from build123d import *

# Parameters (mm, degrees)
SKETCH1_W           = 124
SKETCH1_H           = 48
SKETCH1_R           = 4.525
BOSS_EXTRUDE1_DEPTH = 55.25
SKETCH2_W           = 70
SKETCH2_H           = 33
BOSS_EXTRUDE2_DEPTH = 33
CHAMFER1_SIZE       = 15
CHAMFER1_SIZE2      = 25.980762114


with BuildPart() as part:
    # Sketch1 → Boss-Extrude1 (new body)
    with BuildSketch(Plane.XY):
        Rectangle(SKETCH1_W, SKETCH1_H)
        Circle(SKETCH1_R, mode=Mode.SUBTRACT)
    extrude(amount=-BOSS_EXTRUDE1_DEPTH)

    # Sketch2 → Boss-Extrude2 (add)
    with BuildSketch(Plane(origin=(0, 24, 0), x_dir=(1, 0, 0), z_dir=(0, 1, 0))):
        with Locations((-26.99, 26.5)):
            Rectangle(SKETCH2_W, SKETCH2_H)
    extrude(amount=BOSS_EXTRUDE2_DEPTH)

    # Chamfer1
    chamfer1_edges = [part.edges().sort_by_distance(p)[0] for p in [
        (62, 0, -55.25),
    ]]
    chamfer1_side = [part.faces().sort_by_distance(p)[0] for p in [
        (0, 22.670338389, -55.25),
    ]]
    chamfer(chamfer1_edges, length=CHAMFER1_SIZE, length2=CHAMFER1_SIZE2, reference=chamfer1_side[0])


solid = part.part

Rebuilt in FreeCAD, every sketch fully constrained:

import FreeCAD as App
import Part
import Sketcher


def edges_at(feature, points):
    """Names of the edges that pass closest to the given points."""
    edges = feature.Shape.Edges
    near = lambda p: min(range(len(edges)), key=lambda i: edges[i].distToShape(Part.Vertex(*p))[0])
    return sorted({f"Edge{near(p) + 1}" for p in points})

doc = App.newDocument("Part")
params = doc.addObject("Spreadsheet::Sheet", "Params")
for row, (alias, value) in enumerate([
    ("sketch1_diameter", "9.05 mm"),
    ("sketch1_width", "124 mm"),
    ("sketch1_height", "48 mm"),
    ("pad1_length", "55.25 mm"),
    ("sketch2_width", "70 mm"),
    ("sketch2_height", "33 mm"),
    ("pad2_length", "33 mm"),
    ("chamfer_size", "15 mm"),
    ("chamfer_size2", "25.980762 mm"),
], start=1):
    params.set(f"A{row}", alias)
    params.set(f"B{row}", "=" + value)
    params.setAlias(f"B{row}", alias)

body = doc.addObject("PartDesign::Body", "Body")

sketch1 = body.newObject("Sketcher::SketchObject", "Sketch")
sketch1.AttachmentSupport = (doc.getObject("XY_Plane"), [""])
sketch1.MapMode = "FlatFace"
sketch1.addGeometry([
    Part.LineSegment(App.Vector(-62, 24, 0), App.Vector(-62, -24, 0)),
    Part.LineSegment(App.Vector(-62, -24, 0), App.Vector(62, -24, 0)),
    Part.LineSegment(App.Vector(62, -24, 0), App.Vector(62, 24, 0)),
    Part.LineSegment(App.Vector(62, 24, 0), App.Vector(-62, 24, 0)),
    Part.Circle(App.Vector(0, 0, 0), App.Vector(0, 0, 1), 4.5),
], False)
sketch1.addConstraint([
    Sketcher.Constraint("Coincident", 0, 2, 1, 1),
    Sketcher.Constraint("Coincident", 1, 2, 2, 1),
    Sketcher.Constraint("Coincident", 2, 2, 3, 1),
    Sketcher.Constraint("Coincident", 3, 2, 0, 1),
    Sketcher.Constraint("Vertical", 0),
    Sketcher.Constraint("Horizontal", 1),
    Sketcher.Constraint("Vertical", 2),
    Sketcher.Constraint("Horizontal", 3),
    Sketcher.Constraint("Coincident", 4, 3, -1, 1),
    Sketcher.Constraint("Symmetric", 0, 2, 2, 2, -1, 1),
    Sketcher.Constraint("Diameter", 4, 9.05),
    Sketcher.Constraint("DistanceX", 1, 1, 1, 2, 124.0),
    Sketcher.Constraint("DistanceY", 0, 2, 0, 1, 48.0),
])
sketch1.setExpression("Constraints[10]", "Params.sketch1_diameter")
sketch1.setExpression("Constraints[11]", "Params.sketch1_width")
sketch1.setExpression("Constraints[12]", "Params.sketch1_height")
pad1 = body.newObject("PartDesign::Pad", "Pad")
pad1.Profile = sketch1
pad1.setExpression("Length", "Params.pad1_length")
pad1.Reversed = True

sketch2 = body.newObject("Sketcher::SketchObject", "Sketch001")
sketch2.AttachmentSupport = (doc.getObject("XZ_Plane"), [""])
sketch2.MapMode = "FlatFace"
sketch2.AttachmentOffset = App.Placement(App.Vector(0, 0, -24), App.Rotation())
sketch2.addGeometry([
    Part.LineSegment(App.Vector(-62, -43, 0), App.Vector(-62, -10, 0)),
    Part.LineSegment(App.Vector(-62, -10, 0), App.Vector(8, -10, 0)),
    Part.LineSegment(App.Vector(8, -10, 0), App.Vector(8, -43, 0)),
    Part.LineSegment(App.Vector(8, -43, 0), App.Vector(-62, -43, 0)),
], False)
sketch2.addConstraint([
    Sketcher.Constraint("Coincident", 0, 2, 1, 1),
    Sketcher.Constraint("Coincident", 1, 2, 2, 1),
    Sketcher.Constraint("Coincident", 2, 2, 3, 1),
    Sketcher.Constraint("Coincident", 3, 2, 0, 1),
    Sketcher.Constraint("Vertical", 0),
    Sketcher.Constraint("Horizontal", 1),
    Sketcher.Constraint("Vertical", 2),
    Sketcher.Constraint("Horizontal", 3),
    Sketcher.Constraint("DistanceX", 1, 1, 1, 2, 70.0),
    Sketcher.Constraint("DistanceY", 0, 1, 0, 2, 33.0),
    Sketcher.Constraint("DistanceY", 0, 2, -1, 1, 10.0),
    Sketcher.Constraint("DistanceX", 0, 2, -1, 1, 61.99),
])
sketch2.setExpression("Constraints[8]", "Params.sketch2_width")
sketch2.setExpression("Constraints[9]", "Params.sketch2_height")
pad2 = body.newObject("PartDesign::Pad", "Pad001")
pad2.Profile = sketch2
pad2.setExpression("Length", "Params.pad2_length")
pad2.Reversed = True
doc.recompute()

chamfer = body.newObject("PartDesign::Chamfer", "Chamfer")
chamfer.Base = (pad2, edges_at(pad2, [(62, 0, -55.25)]))
chamfer.ChamferType = "Two distances"
chamfer.setExpression("Size", "Params.chamfer_size")
chamfer.setExpression("Size2", "Params.chamfer_size2")

doc.recompute()
